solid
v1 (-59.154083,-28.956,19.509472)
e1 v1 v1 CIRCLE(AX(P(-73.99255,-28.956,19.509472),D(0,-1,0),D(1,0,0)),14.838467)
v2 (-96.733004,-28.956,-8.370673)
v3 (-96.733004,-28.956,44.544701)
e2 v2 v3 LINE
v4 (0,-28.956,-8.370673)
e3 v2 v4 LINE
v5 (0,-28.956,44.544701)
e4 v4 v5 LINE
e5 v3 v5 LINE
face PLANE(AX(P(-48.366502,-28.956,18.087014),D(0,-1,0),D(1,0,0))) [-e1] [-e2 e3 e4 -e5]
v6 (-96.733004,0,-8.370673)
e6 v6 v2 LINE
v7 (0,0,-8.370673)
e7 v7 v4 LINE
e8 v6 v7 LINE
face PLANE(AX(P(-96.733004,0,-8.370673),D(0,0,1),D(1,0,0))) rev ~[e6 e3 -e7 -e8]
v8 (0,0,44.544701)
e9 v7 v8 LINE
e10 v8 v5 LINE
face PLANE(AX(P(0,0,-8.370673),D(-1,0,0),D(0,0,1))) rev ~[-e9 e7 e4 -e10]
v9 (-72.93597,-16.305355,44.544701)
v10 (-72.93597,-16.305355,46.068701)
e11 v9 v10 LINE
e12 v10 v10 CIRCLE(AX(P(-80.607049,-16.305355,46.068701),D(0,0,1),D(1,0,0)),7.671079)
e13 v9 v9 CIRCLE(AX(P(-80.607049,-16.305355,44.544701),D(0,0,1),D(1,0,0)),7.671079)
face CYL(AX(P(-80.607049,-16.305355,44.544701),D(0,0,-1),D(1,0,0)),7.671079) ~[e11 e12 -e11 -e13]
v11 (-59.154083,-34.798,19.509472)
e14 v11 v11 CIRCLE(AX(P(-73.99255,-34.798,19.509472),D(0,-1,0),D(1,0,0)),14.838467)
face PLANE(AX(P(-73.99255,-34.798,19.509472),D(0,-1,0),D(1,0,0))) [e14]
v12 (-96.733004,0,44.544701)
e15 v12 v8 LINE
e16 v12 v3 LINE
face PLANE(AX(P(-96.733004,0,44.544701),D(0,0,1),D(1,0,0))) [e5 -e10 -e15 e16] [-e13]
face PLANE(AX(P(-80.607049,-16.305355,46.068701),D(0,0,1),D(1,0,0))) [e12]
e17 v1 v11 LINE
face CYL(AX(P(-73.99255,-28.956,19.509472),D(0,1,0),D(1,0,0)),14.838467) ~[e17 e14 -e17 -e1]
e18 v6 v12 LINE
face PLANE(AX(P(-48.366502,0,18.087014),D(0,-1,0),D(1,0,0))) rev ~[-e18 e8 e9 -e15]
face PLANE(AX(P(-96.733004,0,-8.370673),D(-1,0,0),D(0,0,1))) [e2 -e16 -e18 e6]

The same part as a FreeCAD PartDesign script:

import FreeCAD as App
import Part
import Sketcher
Q = App.Units.Quantity

doc = App.newDocument("Part")
body = doc.addObject("PartDesign::Body", "Body")

# Sketch on XZ plane
sketch1 = body.newObject("Sketcher::SketchObject", "Sketch")
sketch1.AttachmentSupport = (doc.getObject("XZ_Plane"), [""])
sketch1.MapMode = "FlatFace"
sketch1.addGeometry([
    Part.LineSegment(App.Vector(-96.733004, 44.544701, 0), App.Vector(-96.733004, -8.370673, 0)),
    Part.LineSegment(App.Vector(-96.733004, -8.370673, 0), App.Vector(0, -8.370673, 0)),
    Part.LineSegment(App.Vector(0, -8.370673, 0), App.Vector(0, 44.544701, 0)),
    Part.LineSegment(App.Vector(0, 44.544701, 0), App.Vector(-96.733004, 44.544701, 0)),
], False)
sketch1.addConstraint([
    Sketcher.Constraint("Coincident", 0, 2, 1, 1),
    Sketcher.Constraint("Coincident", 1, 2, 2, 1),
    Sketcher.Constraint("Coincident", 2, 2, 3, 1),
    Sketcher.Constraint("Coincident", 3, 2, 0, 1),
    Sketcher.Constraint("Vertical", 0),
    Sketcher.Constraint("Horizontal", 1),
    Sketcher.Constraint("Vertical", 2),
    Sketcher.Constraint("Horizontal", 3),
    Sketcher.Constraint("PointOnObject", 1, 2, -2),
    Sketcher.Constraint("DistanceY", -1, 1, 2, 2, 44.544701),
    Sketcher.Constraint("DistanceX", 1, 1, 1, 2, 96.733004),
    Sketcher.Constraint("DistanceY", 0, 2, 0, 1, 52.915374),
])
pad1 = body.newObject("PartDesign::Pad", "Pad")
pad1.Profile = sketch1
pad1.Length = Q("1.14 in")

# Sketch on XZ plane
sketch2 = body.newObject("Sketcher::SketchObject", "Sketch001")
sketch2.AttachmentSupport = (doc.getObject("XZ_Plane"), [""])
sketch2.MapMode = "FlatFace"
sketch2.AttachmentOffset = App.Placement(App.Vector(0, 0, 1.14 * 25.4), App.Rotation())
sketch2.addGeometry(Part.Circle(App.Vector(-73.99255, 19.509472, 0), App.Vector(0, 0, 1), 14.838467), False)
sketch2.addConstraint([
    Sketcher.Constraint("Diameter", 0, 29.676934),
    Sketcher.Constraint("DistanceX", 0, 3, -1, 1, 73.99255),
    Sketcher.Constraint("DistanceY", -1, 1, 0, 3, 19.509472),
])
pad2 = body.newObject("PartDesign::Pad", "Pad001")
pad2.Profile = sketch2
pad2.Length = Q("0.23 in")

# Sketch on XY plane
sketch3 = body.newObject("Sketcher::SketchObject", "Sketch002")
sketch3.AttachmentSupport = (doc.getObject("XY_Plane"), [""])
sketch3.MapMode = "FlatFace"
sketch3.AttachmentOffset = App.Placement(App.Vector(0, 0, 44.544701), App.Rotation())
sketch3.addGeometry(Part.Circle(App.Vector(-80.607049, -16.305355, 0), App.Vector(0, 0, 1), 7.671079), False)
sketch3.addConstraint([
    Sketcher.Constraint("Diameter", 0, 15.342158),
    Sketcher.Constraint("DistanceX", 0, 3, -1, 1, 80.607049),
    Sketcher.Constraint("DistanceY", 0, 3, -1, 1, 16.305355),
])
pad3 = body.newObject("PartDesign::Pad", "Pad002")
pad3.Profile = sketch3
pad3.Length = Q("0.06 in")

doc.recompute()
